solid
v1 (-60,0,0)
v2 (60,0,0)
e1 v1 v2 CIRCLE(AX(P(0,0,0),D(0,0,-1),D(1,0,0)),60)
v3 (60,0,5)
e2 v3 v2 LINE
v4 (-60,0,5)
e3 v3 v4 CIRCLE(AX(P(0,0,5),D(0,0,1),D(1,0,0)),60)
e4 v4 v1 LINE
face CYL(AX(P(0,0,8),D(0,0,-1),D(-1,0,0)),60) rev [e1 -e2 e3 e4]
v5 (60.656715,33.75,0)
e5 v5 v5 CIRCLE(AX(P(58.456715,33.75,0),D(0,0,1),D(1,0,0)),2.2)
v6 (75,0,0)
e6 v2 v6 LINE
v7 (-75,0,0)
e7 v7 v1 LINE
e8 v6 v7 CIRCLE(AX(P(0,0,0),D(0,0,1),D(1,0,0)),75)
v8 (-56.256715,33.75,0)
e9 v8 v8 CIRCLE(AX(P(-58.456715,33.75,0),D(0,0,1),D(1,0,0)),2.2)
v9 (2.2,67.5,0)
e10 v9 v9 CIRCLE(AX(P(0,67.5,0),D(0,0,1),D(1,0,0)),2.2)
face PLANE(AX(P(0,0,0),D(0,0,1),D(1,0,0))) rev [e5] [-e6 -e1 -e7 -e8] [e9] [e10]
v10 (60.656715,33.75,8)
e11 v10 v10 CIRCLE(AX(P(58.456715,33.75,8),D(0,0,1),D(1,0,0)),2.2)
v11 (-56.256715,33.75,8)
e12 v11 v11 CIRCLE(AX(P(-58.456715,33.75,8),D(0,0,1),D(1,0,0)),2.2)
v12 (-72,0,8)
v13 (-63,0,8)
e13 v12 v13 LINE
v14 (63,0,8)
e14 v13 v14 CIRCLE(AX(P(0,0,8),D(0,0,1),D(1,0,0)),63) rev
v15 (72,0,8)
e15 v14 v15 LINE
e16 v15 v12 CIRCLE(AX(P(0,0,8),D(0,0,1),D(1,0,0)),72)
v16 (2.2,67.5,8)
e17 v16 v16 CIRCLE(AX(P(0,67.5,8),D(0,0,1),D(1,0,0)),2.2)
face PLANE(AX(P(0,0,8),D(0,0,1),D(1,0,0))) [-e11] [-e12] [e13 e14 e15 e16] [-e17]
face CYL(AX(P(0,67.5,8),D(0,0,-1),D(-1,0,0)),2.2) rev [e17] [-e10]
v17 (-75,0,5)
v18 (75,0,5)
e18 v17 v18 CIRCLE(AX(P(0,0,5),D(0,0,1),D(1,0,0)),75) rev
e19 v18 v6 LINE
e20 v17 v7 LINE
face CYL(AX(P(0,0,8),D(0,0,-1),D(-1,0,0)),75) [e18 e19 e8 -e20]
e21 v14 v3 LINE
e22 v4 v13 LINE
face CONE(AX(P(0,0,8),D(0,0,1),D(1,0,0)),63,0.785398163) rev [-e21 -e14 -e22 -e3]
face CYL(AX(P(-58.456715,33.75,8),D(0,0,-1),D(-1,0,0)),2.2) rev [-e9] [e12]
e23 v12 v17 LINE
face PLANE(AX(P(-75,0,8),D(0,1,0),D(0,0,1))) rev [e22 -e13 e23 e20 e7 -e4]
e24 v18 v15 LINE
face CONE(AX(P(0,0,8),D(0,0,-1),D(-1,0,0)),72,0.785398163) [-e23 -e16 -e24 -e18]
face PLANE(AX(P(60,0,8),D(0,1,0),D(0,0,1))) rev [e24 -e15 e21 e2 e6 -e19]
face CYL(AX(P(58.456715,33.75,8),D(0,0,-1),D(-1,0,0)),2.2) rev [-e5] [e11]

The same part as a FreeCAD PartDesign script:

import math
import FreeCAD as App
import Part
import Sketcher

V = App.Vector


def edges_at(feature, points):
    """Names of the edges that pass closest to the given points."""
    edges = feature.Shape.Edges
    near = lambda p: min(range(len(edges)), key=lambda i: edges[i].distToShape(Part.Vertex(*p))[0])
    return sorted({f"Edge{near(p) + 1}" for p in points})

doc = App.newDocument("Part")
body = doc.addObject("PartDesign::Body", "Body")

# Sketch on XY plane
sketch1 = body.newObject("Sketcher::SketchObject", "Sketch")
sketch1.AttachmentSupport = (doc.getObject("XY_Plane"), [""])
sketch1.MapMode = "FlatFace"
sketch1.addGeometry([
    Part.LineSegment(V(-75, 0, 0), V(-60, 0, 0)),  # 0
    Part.ArcOfCircle(Part.Circle(V(0, 0, 0), V(0, 0, 1), 60), math.radians(0), math.radians(180)),  # 1
    Part.LineSegment(V(60, 0, 0), V(75, 0, 0)),  # 2
    Part.ArcOfCircle(Part.Circle(V(0, 0, 0), V(0, 0, 1), 75), math.radians(0), math.radians(180)),  # 3
    Part.Circle(V(-58.5, 33.8, 0), V(0, 0, 1), 2.2),  # 4
    Part.Circle(V(58.5, 33.8, 0), V(0, 0, 1), 2.2),  # 5
    Part.Circle(V(0, 67.5, 0), V(0, 0, 1), 2.2),  # 6
], False)
sketch1.addConstraint([
    Sketcher.Constraint("Coincident", 0, 2, 1, 2),
    Sketcher.Constraint("Coincident", 1, 1, 2, 1),
    Sketcher.Constraint("Coincident", 2, 2, 3, 1),
    Sketcher.Constraint("Coincident", 3, 2, 0, 1),
    Sketcher.Constraint("Horizontal", 0),
    Sketcher.Constraint("Horizontal", 2),
    Sketcher.Constraint("Coincident", 1, 3, -1, 1),
    Sketcher.Constraint("Coincident", 3, 3, -1, 1),
    Sketcher.Constraint("Equal", 4, 5),
    Sketcher.Constraint("Equal", 5, 6),
    Sketcher.Constraint("Symmetric", 4, 3, 5, 3, -2),
    Sketcher.Constraint("PointOnObject", 6, 3, -2),
    Sketcher.Constraint("PointOnObject", 0, 2, -1),
    Sketcher.Constraint("PointOnObject", 1, 1, -1),
    Sketcher.Constraint("Radius", 1, 60.0),
    Sketcher.Constraint("Radius", 3, 75.0),
    Sketcher.Constraint("Diameter", 4, 4.4),
    Sketcher.Constraint("DistanceY", -1, 1, 6, 3, 67.5),
    Sketcher.Constraint("DistanceY", -1, 1, 4, 3, 33.75),
    Sketcher.Constraint("DistanceX", 4, 3, 5, 3, 116.91343),
])
pad1 = body.newObject("PartDesign::Pad", "Pad")
pad1.Profile = sketch1
pad1.Length = 8
doc.recompute()

chamfer = body.newObject("PartDesign::Chamfer", "Chamfer")
chamfer.Base = (pad1, edges_at(pad1, [(0, 75, 8), (0, 60, 8)]))
chamfer.Size = 3

doc.recompute()
